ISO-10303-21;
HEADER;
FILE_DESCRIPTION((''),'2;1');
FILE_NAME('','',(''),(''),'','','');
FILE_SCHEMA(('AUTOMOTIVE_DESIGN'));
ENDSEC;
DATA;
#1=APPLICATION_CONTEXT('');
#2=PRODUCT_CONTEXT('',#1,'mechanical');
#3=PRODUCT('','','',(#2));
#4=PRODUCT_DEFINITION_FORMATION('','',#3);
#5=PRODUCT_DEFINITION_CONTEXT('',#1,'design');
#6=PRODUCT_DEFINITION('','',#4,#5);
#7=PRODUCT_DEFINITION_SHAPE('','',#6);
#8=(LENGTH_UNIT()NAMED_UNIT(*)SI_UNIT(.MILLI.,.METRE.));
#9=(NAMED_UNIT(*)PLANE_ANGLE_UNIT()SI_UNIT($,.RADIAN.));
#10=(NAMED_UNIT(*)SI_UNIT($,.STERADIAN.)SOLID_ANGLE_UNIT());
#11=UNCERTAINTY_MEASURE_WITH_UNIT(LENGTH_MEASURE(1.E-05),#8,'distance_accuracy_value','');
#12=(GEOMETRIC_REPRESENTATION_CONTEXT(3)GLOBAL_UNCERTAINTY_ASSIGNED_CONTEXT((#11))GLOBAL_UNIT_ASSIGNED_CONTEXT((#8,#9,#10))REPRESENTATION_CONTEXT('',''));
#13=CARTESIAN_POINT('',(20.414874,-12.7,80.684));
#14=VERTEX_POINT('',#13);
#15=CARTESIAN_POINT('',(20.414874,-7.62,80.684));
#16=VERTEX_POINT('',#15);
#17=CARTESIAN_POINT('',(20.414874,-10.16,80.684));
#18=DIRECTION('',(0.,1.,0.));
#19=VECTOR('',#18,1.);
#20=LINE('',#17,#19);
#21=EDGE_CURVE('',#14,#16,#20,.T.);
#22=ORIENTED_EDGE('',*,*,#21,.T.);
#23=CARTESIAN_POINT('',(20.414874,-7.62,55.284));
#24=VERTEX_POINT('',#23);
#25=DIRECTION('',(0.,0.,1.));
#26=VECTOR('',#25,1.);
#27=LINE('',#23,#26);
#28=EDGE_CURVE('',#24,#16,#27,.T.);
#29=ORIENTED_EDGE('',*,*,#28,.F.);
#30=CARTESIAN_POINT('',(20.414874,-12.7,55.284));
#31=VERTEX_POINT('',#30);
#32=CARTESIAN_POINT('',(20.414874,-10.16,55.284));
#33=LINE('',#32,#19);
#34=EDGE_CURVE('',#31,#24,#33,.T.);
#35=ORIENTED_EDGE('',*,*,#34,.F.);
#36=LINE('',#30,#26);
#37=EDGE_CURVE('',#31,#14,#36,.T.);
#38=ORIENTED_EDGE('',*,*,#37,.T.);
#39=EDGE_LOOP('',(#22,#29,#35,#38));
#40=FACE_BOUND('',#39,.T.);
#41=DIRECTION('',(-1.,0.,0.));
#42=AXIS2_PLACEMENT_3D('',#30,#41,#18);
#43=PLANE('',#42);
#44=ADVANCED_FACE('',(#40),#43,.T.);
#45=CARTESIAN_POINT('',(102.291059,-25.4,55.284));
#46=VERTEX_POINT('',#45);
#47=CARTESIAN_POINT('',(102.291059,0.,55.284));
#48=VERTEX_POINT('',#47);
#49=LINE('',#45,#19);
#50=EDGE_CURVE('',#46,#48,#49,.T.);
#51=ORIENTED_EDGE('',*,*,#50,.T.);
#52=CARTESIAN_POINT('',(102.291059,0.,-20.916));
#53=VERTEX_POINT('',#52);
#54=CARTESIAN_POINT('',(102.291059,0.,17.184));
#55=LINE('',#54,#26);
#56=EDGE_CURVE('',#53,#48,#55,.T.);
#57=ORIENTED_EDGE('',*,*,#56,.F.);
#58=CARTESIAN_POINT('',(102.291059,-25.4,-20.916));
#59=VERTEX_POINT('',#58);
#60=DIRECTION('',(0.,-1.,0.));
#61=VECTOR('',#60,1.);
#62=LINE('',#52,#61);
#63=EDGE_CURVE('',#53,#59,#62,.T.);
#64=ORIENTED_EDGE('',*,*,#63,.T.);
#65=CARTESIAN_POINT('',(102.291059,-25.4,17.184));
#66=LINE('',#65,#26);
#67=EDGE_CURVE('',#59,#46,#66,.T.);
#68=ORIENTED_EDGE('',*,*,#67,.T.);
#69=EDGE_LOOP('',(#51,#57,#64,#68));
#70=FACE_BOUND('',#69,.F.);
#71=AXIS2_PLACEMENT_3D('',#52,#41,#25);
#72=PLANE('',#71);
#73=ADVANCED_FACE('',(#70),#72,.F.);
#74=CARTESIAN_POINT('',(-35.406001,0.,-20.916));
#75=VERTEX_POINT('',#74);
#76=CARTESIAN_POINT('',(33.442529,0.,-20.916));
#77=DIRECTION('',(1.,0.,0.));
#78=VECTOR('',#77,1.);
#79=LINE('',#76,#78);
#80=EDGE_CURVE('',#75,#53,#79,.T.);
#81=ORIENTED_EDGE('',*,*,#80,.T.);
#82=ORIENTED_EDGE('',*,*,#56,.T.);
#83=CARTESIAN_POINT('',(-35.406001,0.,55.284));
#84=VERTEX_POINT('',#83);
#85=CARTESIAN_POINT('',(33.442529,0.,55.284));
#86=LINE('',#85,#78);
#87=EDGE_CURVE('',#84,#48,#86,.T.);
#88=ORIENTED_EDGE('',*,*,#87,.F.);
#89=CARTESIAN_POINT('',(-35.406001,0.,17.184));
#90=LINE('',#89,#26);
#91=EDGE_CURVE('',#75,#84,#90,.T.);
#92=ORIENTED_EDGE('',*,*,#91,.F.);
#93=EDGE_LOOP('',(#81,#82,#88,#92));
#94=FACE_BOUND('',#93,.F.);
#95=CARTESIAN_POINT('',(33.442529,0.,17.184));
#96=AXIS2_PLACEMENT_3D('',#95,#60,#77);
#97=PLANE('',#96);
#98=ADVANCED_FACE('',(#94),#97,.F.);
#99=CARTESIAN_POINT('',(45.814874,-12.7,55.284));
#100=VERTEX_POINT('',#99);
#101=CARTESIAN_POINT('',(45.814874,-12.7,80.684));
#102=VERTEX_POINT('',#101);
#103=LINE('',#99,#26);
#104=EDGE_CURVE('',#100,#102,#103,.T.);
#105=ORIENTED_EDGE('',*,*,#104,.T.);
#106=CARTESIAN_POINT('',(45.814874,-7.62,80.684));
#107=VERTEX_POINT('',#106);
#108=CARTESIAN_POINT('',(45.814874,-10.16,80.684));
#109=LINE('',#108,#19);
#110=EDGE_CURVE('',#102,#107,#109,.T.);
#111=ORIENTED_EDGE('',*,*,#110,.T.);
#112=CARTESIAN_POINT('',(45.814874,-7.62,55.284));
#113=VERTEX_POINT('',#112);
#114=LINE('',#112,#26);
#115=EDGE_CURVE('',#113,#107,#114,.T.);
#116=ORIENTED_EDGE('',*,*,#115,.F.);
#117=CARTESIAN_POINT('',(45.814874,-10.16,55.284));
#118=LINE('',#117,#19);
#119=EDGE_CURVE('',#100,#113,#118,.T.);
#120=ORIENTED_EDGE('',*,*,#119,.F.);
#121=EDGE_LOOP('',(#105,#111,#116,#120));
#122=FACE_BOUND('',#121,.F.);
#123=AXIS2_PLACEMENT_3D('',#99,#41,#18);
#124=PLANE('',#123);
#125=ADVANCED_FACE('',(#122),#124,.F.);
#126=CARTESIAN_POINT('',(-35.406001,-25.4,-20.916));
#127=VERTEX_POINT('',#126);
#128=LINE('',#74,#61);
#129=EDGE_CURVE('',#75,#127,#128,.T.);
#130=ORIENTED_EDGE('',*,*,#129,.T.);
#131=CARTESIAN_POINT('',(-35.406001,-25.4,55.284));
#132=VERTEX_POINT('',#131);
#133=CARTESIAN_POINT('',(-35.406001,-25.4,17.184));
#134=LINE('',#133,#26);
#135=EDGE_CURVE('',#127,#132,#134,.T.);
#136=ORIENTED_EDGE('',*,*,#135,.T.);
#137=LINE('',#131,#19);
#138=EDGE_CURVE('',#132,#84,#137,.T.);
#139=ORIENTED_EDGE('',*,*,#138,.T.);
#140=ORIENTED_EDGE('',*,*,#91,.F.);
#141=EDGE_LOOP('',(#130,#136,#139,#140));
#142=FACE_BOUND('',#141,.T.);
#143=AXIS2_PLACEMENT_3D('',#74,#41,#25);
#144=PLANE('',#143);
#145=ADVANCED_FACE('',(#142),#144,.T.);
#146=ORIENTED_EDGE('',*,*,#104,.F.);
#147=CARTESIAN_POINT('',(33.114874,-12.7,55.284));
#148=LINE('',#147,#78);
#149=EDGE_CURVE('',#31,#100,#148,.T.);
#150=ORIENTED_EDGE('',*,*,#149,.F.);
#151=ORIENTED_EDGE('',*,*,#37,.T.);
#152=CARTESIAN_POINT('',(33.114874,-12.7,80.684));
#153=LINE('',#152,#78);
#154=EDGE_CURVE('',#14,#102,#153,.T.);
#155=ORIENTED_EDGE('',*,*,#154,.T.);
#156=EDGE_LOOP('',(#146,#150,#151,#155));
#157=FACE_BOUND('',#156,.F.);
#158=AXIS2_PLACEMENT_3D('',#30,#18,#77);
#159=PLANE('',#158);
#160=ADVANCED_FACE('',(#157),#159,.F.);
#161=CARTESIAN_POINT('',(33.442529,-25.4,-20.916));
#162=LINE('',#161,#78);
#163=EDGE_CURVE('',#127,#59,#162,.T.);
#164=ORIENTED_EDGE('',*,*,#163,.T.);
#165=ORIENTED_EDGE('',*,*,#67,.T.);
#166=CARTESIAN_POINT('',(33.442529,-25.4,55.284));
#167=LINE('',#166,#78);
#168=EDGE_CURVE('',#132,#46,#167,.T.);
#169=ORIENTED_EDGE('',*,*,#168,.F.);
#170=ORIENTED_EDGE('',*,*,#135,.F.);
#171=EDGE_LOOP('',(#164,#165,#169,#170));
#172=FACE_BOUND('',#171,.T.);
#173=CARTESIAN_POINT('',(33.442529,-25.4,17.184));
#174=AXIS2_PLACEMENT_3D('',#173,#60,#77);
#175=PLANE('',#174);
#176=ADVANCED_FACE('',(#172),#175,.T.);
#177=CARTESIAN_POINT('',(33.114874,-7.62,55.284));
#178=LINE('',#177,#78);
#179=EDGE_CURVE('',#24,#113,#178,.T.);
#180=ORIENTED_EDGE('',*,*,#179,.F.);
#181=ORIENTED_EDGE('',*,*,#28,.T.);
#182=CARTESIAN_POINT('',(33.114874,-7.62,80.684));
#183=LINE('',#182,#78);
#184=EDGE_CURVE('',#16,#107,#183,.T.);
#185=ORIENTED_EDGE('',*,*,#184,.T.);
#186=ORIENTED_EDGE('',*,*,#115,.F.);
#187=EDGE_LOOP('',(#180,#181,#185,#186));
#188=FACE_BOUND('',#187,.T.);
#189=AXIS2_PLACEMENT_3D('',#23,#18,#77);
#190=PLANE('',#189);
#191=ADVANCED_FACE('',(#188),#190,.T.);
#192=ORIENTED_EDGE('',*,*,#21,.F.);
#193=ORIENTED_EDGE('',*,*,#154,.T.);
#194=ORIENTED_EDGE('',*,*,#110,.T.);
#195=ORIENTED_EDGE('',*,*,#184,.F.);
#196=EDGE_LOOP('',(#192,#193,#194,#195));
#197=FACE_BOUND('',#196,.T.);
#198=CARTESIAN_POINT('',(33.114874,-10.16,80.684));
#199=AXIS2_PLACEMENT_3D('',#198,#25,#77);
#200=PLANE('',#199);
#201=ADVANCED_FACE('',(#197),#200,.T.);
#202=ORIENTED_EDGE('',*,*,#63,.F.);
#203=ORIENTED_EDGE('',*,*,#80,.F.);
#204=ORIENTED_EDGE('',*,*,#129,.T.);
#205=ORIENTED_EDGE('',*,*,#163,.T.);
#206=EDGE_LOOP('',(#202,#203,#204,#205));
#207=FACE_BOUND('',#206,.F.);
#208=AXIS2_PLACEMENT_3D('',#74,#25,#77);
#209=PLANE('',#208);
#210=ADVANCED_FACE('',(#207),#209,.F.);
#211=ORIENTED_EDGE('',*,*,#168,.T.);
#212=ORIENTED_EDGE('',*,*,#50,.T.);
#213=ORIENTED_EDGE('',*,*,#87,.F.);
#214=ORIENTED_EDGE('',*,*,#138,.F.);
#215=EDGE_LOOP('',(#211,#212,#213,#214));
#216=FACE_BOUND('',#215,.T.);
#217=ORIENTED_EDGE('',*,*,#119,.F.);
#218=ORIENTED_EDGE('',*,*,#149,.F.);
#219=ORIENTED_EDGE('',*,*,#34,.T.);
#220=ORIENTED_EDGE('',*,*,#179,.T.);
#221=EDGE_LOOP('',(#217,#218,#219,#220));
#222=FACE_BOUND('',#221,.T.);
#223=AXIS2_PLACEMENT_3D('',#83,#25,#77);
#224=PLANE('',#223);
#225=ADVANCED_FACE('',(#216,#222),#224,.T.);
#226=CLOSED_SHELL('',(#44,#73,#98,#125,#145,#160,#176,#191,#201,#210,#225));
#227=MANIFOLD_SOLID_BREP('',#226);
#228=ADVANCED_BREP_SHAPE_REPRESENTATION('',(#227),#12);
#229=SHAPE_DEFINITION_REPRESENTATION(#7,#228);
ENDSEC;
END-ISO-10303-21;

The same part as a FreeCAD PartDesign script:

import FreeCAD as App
import Part
import Sketcher

V = App.Vector
Q = App.Units.Quantity


def add_polygon(sketch, points):
    """Adds a closed chain of lines whose ends are joined by coincident constraints."""
    first, n = sketch.GeometryCount, len(points)
    for a, b in zip(points, points[1:] + points[:1]):
        sketch.addGeometry(Part.LineSegment(App.Vector(*a, 0), App.Vector(*b, 0)), False)
    for i in range(n):
        sketch.addConstraint(Sketcher.Constraint("Coincident", first + i, 2, first + (i + 1) % n, 1))

doc = App.newDocument("Part")
body = doc.addObject("PartDesign::Body", "Body")

sketch1 = body.newObject("Sketcher::SketchObject", "Sketch")
sketch1.AttachmentSupport = (doc.getObject("XZ_Plane"), [""])
sketch1.MapMode = "FlatFace"
add_polygon(sketch1, [(-35, 55), (-35, -21), (102, -21), (102, 55)])
sketch1.addConstraint([
    Sketcher.Constraint("Vertical", 0),
    Sketcher.Constraint("Horizontal", 1),
    Sketcher.Constraint("Vertical", 2),
    Sketcher.Constraint("Horizontal", 3),
    Sketcher.Constraint("DistanceY", 0, 2, 0, 1, Q("3 in")),
    Sketcher.Constraint("DistanceX", 1, 1, 1, 2, 137.69706),
    Sketcher.Constraint("DistanceX", 0, 2, -1, 1, 35.406001),
    Sketcher.Constraint("DistanceY", 0, 2, -1, 1, 20.916),
])
pad1 = body.newObject("PartDesign::Pad", "Pad")
pad1.Profile = sketch1
pad1.Length = Q("0.43 in")

sketch2 = body.newObject("Sketcher::SketchObject", "Sketch001")
sketch2.AttachmentSupport = (doc.getObject("XZ_Plane"), [""])
sketch2.MapMode = "FlatFace"
add_polygon(sketch2, [(-35, 55), (-35, -21), (102, -21), (102, 55)])
sketch2.addConstraint([
    Sketcher.Constraint("Vertical", 0),
    Sketcher.Constraint("Horizontal", 1),
    Sketcher.Constraint("Vertical", 2),
    Sketcher.Constraint("Horizontal", 3),
    Sketcher.Constraint("DistanceY", 0, 2, 0, 1, Q("3 in")),
    Sketcher.Constraint("DistanceX", 1, 1, 1, 2, 137.69706),
    Sketcher.Constraint("DistanceX", 0, 2, -1, 1, 35.406001),
    Sketcher.Constraint("DistanceY", 0, 2, -1, 1, 20.916),
])
pad2 = body.newObject("PartDesign::Pad", "Pad001")
pad2.Profile = sketch2
pad2.Length = Q("1 in")

sketch3 = body.newObject("Sketcher::SketchObject", "Sketch002")
sketch3.AttachmentSupport = (doc.getObject("XY_Plane"), [""])
sketch3.MapMode = "FlatFace"
sketch3.AttachmentOffset = App.Placement(V(0, 0, 55.284), App.Rotation())
add_polygon(sketch3, [(20, -8), (20, -13), (46, -13), (46, -8)])
sketch3.addConstraint([
    Sketcher.Constraint("Vertical", 0),
    Sketcher.Constraint("Horizontal", 1),
    Sketcher.Constraint("Vertical", 2),
    Sketcher.Constraint("Horizontal", 3),
    Sketcher.Constraint("DistanceX", 1, 1, 1, 2, Q("1 in")),
    Sketcher.Constraint("DistanceY", 0, 2, 0, 1, Q("0.2 in")),
    Sketcher.Constraint("DistanceY", 0, 2, -1, 1, Q("0.5 in")),
    Sketcher.Constraint("DistanceX", -1, 1, 0, 2, 20.414874),
])
pad3 = body.newObject("PartDesign::Pad", "Pad002")
pad3.Profile = sketch3
pad3.Length = Q("1 in")

doc.recompute()
